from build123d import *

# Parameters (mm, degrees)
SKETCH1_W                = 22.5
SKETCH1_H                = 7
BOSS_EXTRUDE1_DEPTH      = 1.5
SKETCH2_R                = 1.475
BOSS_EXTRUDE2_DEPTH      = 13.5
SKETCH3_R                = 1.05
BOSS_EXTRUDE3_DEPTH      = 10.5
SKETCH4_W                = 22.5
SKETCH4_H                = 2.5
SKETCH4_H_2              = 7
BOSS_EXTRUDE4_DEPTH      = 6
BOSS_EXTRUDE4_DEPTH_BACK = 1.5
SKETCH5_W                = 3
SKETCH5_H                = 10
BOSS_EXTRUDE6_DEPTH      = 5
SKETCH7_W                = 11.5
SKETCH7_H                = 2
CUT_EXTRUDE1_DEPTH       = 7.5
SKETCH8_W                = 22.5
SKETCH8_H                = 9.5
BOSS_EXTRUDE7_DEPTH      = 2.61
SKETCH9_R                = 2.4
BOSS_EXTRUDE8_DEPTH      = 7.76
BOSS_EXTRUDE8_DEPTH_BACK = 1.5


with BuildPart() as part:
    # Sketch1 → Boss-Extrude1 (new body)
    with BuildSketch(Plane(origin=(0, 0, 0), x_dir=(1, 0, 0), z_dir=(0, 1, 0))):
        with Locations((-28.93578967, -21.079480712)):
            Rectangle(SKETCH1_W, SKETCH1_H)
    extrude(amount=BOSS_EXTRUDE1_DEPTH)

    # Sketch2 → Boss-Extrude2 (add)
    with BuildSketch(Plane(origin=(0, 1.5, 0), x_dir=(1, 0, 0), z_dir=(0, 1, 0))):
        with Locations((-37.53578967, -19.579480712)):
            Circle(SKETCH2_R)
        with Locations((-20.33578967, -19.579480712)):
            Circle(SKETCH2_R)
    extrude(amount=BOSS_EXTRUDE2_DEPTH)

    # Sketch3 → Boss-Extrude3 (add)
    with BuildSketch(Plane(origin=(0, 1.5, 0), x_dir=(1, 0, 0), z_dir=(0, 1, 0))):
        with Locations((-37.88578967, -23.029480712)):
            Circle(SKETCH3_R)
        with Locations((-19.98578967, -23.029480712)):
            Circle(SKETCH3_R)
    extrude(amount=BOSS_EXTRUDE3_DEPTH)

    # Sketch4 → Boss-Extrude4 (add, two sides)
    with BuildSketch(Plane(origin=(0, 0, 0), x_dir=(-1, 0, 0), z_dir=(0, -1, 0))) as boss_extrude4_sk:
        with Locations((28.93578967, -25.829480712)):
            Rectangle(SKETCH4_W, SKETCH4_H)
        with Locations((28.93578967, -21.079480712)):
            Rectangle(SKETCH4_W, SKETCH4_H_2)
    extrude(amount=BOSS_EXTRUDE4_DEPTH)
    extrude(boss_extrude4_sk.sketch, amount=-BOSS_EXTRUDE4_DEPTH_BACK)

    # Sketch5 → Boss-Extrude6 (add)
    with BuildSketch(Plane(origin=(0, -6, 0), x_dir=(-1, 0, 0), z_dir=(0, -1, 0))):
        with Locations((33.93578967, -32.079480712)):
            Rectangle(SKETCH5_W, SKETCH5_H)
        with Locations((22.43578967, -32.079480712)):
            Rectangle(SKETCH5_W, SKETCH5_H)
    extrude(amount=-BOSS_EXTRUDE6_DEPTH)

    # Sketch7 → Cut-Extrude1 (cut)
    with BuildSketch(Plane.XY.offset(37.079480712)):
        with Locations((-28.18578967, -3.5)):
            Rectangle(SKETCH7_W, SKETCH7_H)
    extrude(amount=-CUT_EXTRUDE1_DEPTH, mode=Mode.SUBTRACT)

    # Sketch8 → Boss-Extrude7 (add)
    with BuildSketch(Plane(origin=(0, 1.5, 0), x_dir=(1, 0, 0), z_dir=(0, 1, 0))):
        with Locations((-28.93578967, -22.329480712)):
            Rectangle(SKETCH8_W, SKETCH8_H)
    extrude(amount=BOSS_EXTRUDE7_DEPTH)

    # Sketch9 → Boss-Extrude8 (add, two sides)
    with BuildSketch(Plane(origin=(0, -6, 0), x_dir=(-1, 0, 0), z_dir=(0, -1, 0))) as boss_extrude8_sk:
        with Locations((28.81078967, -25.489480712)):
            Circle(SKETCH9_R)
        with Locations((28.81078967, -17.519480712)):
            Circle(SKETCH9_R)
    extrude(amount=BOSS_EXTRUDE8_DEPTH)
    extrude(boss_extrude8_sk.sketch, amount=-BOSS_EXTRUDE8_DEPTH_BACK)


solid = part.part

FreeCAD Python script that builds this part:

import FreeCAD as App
import Part
import Sketcher

V = App.Vector

doc = App.newDocument("Part")
body = doc.addObject("PartDesign::Body", "Body")

# Sketch on XZ plane
sketch1 = body.newObject("Sketcher::SketchObject", "Sketch")
sketch1.AttachmentSupport = (doc.getObject("XZ_Plane"), [""])
sketch1.MapMode = "FlatFace"
sketch1.addGeometry([
    Part.LineSegment(V(-40, 18, 0), V(-40, 25, 0)),
    Part.LineSegment(V(-40, 25, 0), V(-18, 25, 0)),
    Part.LineSegment(V(-18, 25, 0), V(-18, 18, 0)),
    Part.LineSegment(V(-18, 18, 0), V(-40, 18, 0)),
], False)
sketch1.addConstraint([
    Sketcher.Constraint("Coincident", 0, 2, 1, 1),
    Sketcher.Constraint("Coincident", 1, 2, 2, 1),
    Sketcher.Constraint("Coincident", 2, 2, 3, 1),
    Sketcher.Constraint("Coincident", 3, 2, 0, 1),
    Sketcher.Constraint("Vertical", 0),
    Sketcher.Constraint("Horizontal", 1),
    Sketcher.Constraint("Vertical", 2),
    Sketcher.Constraint("Horizontal", 3),
    Sketcher.Constraint("DistanceY", 0, 1, 0, 2, 7.0),
    Sketcher.Constraint("DistanceX", 1, 1, 1, 2, 22.5),
    Sketcher.Constraint("DistanceX", 0, 2, -1, 1, 40.18579),
    Sketcher.Constraint("DistanceY", -1, 1, 0, 2, 24.579481),
])
pad1 = body.newObject("PartDesign::Pad", "Pad")
pad1.Profile = sketch1
pad1.Length = 1.5
pad1.Reversed = True

# Sketch on XZ plane
sketch2 = body.newObject("Sketcher::SketchObject", "Sketch001")
sketch2.AttachmentSupport = (doc.getObject("XZ_Plane"), [""])
sketch2.MapMode = "FlatFace"
sketch2.AttachmentOffset = App.Placement(V(0, 0, -1.5), App.Rotation())
sketch2.addGeometry([
    Part.Circle(V(-37.5, 19.6, 0), V(0, 0, 1), 1.5),
    Part.Circle(V(-20.3, 19.6, 0), V(0, 0, 1), 1.5),
], False)
sketch2.addConstraint([
    Sketcher.Constraint("Equal", 0, 1),
    Sketcher.Constraint("Horizontal", 0, 3, 1, 3),
    Sketcher.Constraint("Diameter", 0, 2.95),
    Sketcher.Constraint("DistanceX", 0, 3, 1, 3, 17.2),
    Sketcher.Constraint("DistanceX", 0, 3, -1, 1, 37.53579),
    Sketcher.Constraint("DistanceY", -1, 1, 0, 3, 19.579481),
])
pad2 = body.newObject("PartDesign::Pad", "Pad001")
pad2.Profile = sketch2
pad2.Length = 13.5
pad2.Reversed = True

# Sketch on XZ plane
sketch3 = body.newObject("Sketcher::SketchObject", "Sketch002")
sketch3.AttachmentSupport = (doc.getObject("XZ_Plane"), [""])
sketch3.MapMode = "FlatFace"
sketch3.AttachmentOffset = App.Placement(V(0, 0, -1.5), App.Rotation())
sketch3.addGeometry([
    Part.Circle(V(-37.9, 23, 0), V(0, 0, 1), 1.1),
    Part.Circle(V(-20, 23, 0), V(0, 0, 1), 1.1),
], False)
sketch3.addConstraint([
    Sketcher.Constraint("Equal", 0, 1),
    Sketcher.Constraint("Horizontal", 0, 3, 1, 3),
    Sketcher.Constraint("Diameter", 0, 2.1),
    Sketcher.Constraint("DistanceX", 0, 3, 1, 3, 17.9),
    Sketcher.Constraint("DistanceX", 0, 3, -1, 1, 37.88579),
    Sketcher.Constraint("DistanceY", -1, 1, 0, 3, 23.029481),
])
pad3 = body.newObject("PartDesign::Pad", "Pad002")
pad3.Profile = sketch3
pad3.Length = 10.5
pad3.Reversed = True

# Sketch on XZ plane
sketch4 = body.newObject("Sketcher::SketchObject", "Sketch003")
sketch4.AttachmentSupport = (doc.getObject("XZ_Plane"), [""])
sketch4.MapMode = "FlatFace"
sketch4.addGeometry([
    Part.LineSegment(V(-18, 27, 0), V(-40, 27, 0)),
    Part.LineSegment(V(-40, 27, 0), V(-40, 18, 0)),
    Part.LineSegment(V(-40, 18, 0), V(-18, 18, 0)),
    Part.LineSegment(V(-18, 18, 0), V(-18, 27, 0)),
], False)
sketch4.addConstraint([
    Sketcher.Constraint("Coincident", 0, 2, 1, 1),
    Sketcher.Constraint("Coincident", 1, 2, 2, 1),
    Sketcher.Constraint("Coincident", 2, 2, 3, 1),
    Sketcher.Constraint("Coincident", 3, 2, 0, 1),
    Sketcher.Constraint("Horizontal", 0),
    Sketcher.Constraint("Vertical", 1),
    Sketcher.Constraint("Horizontal", 2),
    Sketcher.Constraint("Vertical", 3),
    Sketcher.Constraint("DistanceX", 0, 2, 0, 1, 22.5),
    Sketcher.Constraint("DistanceY", 1, 2, 1, 1, 9.5),
    Sketcher.Constraint("DistanceX", 0, 2, -1, 1, 40.18579),
    Sketcher.Constraint("DistanceY", -1, 1, 0, 2, 27.079481),
])
pad4 = body.newObject("PartDesign::Pad", "Pad003")
pad4.Profile = sketch4
pad4.Type = "TwoLengths"
pad4.Length = 6
pad4.Length2 = 1.5

# Sketch on XZ plane
sketch5 = body.newObject("Sketcher::SketchObject", "Sketch004")
sketch5.AttachmentSupport = (doc.getObject("XZ_Plane"), [""])
sketch5.MapMode = "FlatFace"
sketch5.AttachmentOffset = App.Placement(V(0, 0, 6), App.Rotation())
sketch5.addGeometry([
    Part.LineSegment(V(-32.4, 27.1, 0), V(-32.4, 37.1, 0)),  # 0
    Part.LineSegment(V(-32.4, 37.1, 0), V(-35.4, 37.1, 0)),  # 1
    Part.LineSegment(V(-35.4, 37.1, 0), V(-35.4, 27.1, 0)),  # 2
    Part.LineSegment(V(-35.4, 27.1, 0), V(-32.4, 27.1, 0)),  # 3
    Part.LineSegment(V(-20.9, 27.1, 0), V(-20.9, 37.1, 0)),  # 4
    Part.LineSegment(V(-20.9, 37.1, 0), V(-23.9, 37.1, 0)),  # 5
    Part.LineSegment(V(-23.9, 37.1, 0), V(-23.9, 27.1, 0)),  # 6
    Part.LineSegment(V(-23.9, 27.1, 0), V(-20.9, 27.1, 0)),  # 7
], False)
sketch5.addConstraint([
    Sketcher.Constraint("Coincident", 0, 2, 1, 1),
    Sketcher.Constraint("Coincident", 1, 2, 2, 1),
    Sketcher.Constraint("Coincident", 2, 2, 3, 1),
    Sketcher.Constraint("Coincident", 3, 2, 0, 1),
    Sketcher.Constraint("Coincident", 4, 2, 5, 1),
    Sketcher.Constraint("Coincident", 5, 2, 6, 1),
    Sketcher.Constraint("Coincident", 6, 2, 7, 1),
    Sketcher.Constraint("Coincident", 7, 2, 4, 1),
    Sketcher.Constraint("Vertical", 0),
    Sketcher.Constraint("Horizontal", 1),
    Sketcher.Constraint("Vertical", 2),
    Sketcher.Constraint("Horizontal", 3),
    Sketcher.Constraint("Vertical", 4),
    Sketcher.Constraint("Horizontal", 5),
    Sketcher.Constraint("Vertical", 6),
    Sketcher.Constraint("Horizontal", 7),
    Sketcher.Constraint("Horizontal", 1, 2, 4, 2),
    Sketcher.Constraint("Horizontal", 3, 2, 6, 2),
    Sketcher.Constraint("Equal", 3, 5),
    Sketcher.Constraint("DistanceX", 1, 2, 1, 1, 3.0),
    Sketcher.Constraint("DistanceY", 0, 1, 0, 2, 10.0),
    Sketcher.Constraint("DistanceX", 0, 2, 4, 2, 11.5),
    Sketcher.Constraint("DistanceX", 0, 2, -1, 1, 32.43579),
    Sketcher.Constraint("DistanceY", -1, 1, 0, 2, 37.079481),
])
pad5 = body.newObject("PartDesign::Pad", "Pad004")
pad5.Profile = sketch5
pad5.Length = 5
pad5.Reversed = True

# Sketch on XY plane
sketch6 = body.newObject("Sketcher::SketchObject", "Sketch005")
sketch6.AttachmentSupport = (doc.getObject("XY_Plane"), [""])
sketch6.MapMode = "FlatFace"
sketch6.AttachmentOffset = App.Placement(V(0, 0, 37.079481), App.Rotation())
sketch6.addGeometry([
    Part.LineSegment(V(-33.9, -2.5, 0), V(-33.9, -4.5, 0)),
    Part.LineSegment(V(-33.9, -4.5, 0), V(-22.4, -4.5, 0)),
    Part.LineSegment(V(-22.4, -4.5, 0), V(-22.4, -2.5, 0)),
    Part.LineSegment(V(-22.4, -2.5, 0), V(-33.9, -2.5, 0)),
], False)
sketch6.addConstraint([
    Sketcher.Constraint("Coincident", 0, 2, 1, 1),
    Sketcher.Constraint("Coincident", 1, 2, 2, 1),
    Sketcher.Constraint("Coincident", 2, 2, 3, 1),
    Sketcher.Constraint("Coincident", 3, 2, 0, 1),
    Sketcher.Constraint("Vertical", 0),
    Sketcher.Constraint("Horizontal", 1),
    Sketcher.Constraint("Vertical", 2),
    Sketcher.Constraint("Horizontal", 3),
    Sketcher.Constraint("DistanceY", 0, 2, 0, 1, 2.0),
    Sketcher.Constraint("DistanceX", 1, 1, 1, 2, 11.5),
    Sketcher.Constraint("DistanceY", 0, 2, -1, 1, 4.5),
    Sketcher.Constraint("DistanceX", 0, 2, -1, 1, 33.93579),
])
pocket1 = body.newObject("PartDesign::Pocket", "Pocket")
pocket1.Profile = sketch6
pocket1.Length = 7.5

# Sketch on XZ plane
sketch7 = body.newObject("Sketcher::SketchObject", "Sketch006")
sketch7.AttachmentSupport = (doc.getObject("XZ_Plane"), [""])
sketch7.MapMode = "FlatFace"
sketch7.AttachmentOffset = App.Placement(V(0, 0, -1.5), App.Rotation())
sketch7.addGeometry([
    Part.LineSegment(V(-40, 18, 0), V(-40, 27, 0)),
    Part.LineSegment(V(-40, 27, 0), V(-18, 27, 0)),
    Part.LineSegment(V(-18, 27, 0), V(-18, 18, 0)),
    Part.LineSegment(V(-18, 18, 0), V(-40, 18, 0)),
], False)
sketch7.addConstraint([
    Sketcher.Constraint("Coincident", 0, 2, 1, 1),
    Sketcher.Constraint("Coincident", 1, 2, 2, 1),
    Sketcher.Constraint("Coincident", 2, 2, 3, 1),
    Sketcher.Constraint("Coincident", 3, 2, 0, 1),
    Sketcher.Constraint("Vertical", 0),
    Sketcher.Constraint("Horizontal", 1),
    Sketcher.Constraint("Vertical", 2),
    Sketcher.Constraint("Horizontal", 3),
    Sketcher.Constraint("DistanceX", 1, 1, 1, 2, 22.5),
    Sketcher.Constraint("DistanceY", 0, 1, 0, 2, 9.5),
    Sketcher.Constraint("DistanceX", 0, 2, -1, 1, 40.18579),
    Sketcher.Constraint("DistanceY", -1, 1, 0, 2, 27.079481),
])
pad6 = body.newObject("PartDesign::Pad", "Pad005")
pad6.Profile = sketch7
pad6.Length = 2.61
pad6.Reversed = True

# Sketch on XZ plane
sketch8 = body.newObject("Sketcher::SketchObject", "Sketch007")
sketch8.AttachmentSupport = (doc.getObject("XZ_Plane"), [""])
sketch8.MapMode = "FlatFace"
sketch8.AttachmentOffset = App.Placement(V(0, 0, 6), App.Rotation())
sketch8.addGeometry([
    Part.Circle(V(-28.8, 25.5, 0), V(0, 0, 1), 2.4),
    Part.Circle(V(-28.8, 17.5, 0), V(0, 0, 1), 2.4),
], False)
sketch8.addConstraint([
    Sketcher.Constraint("Equal", 0, 1),
    Sketcher.Constraint("Vertical", 0, 3, 1, 3),
    Sketcher.Constraint("Diameter", 0, 4.8),
    Sketcher.Constraint("DistanceY", 1, 3, 0, 3, 7.97),
    Sketcher.Constraint("DistanceX", 0, 3, -1, 1, 28.81079),
    Sketcher.Constraint("DistanceY", -1, 1, 0, 3, 25.489481),
])
pad7 = body.newObject("PartDesign::Pad", "Pad006")
pad7.Profile = sketch8
pad7.Type = "TwoLengths"
pad7.Length = 7.76
pad7.Length2 = 1.5

doc.recompute()
